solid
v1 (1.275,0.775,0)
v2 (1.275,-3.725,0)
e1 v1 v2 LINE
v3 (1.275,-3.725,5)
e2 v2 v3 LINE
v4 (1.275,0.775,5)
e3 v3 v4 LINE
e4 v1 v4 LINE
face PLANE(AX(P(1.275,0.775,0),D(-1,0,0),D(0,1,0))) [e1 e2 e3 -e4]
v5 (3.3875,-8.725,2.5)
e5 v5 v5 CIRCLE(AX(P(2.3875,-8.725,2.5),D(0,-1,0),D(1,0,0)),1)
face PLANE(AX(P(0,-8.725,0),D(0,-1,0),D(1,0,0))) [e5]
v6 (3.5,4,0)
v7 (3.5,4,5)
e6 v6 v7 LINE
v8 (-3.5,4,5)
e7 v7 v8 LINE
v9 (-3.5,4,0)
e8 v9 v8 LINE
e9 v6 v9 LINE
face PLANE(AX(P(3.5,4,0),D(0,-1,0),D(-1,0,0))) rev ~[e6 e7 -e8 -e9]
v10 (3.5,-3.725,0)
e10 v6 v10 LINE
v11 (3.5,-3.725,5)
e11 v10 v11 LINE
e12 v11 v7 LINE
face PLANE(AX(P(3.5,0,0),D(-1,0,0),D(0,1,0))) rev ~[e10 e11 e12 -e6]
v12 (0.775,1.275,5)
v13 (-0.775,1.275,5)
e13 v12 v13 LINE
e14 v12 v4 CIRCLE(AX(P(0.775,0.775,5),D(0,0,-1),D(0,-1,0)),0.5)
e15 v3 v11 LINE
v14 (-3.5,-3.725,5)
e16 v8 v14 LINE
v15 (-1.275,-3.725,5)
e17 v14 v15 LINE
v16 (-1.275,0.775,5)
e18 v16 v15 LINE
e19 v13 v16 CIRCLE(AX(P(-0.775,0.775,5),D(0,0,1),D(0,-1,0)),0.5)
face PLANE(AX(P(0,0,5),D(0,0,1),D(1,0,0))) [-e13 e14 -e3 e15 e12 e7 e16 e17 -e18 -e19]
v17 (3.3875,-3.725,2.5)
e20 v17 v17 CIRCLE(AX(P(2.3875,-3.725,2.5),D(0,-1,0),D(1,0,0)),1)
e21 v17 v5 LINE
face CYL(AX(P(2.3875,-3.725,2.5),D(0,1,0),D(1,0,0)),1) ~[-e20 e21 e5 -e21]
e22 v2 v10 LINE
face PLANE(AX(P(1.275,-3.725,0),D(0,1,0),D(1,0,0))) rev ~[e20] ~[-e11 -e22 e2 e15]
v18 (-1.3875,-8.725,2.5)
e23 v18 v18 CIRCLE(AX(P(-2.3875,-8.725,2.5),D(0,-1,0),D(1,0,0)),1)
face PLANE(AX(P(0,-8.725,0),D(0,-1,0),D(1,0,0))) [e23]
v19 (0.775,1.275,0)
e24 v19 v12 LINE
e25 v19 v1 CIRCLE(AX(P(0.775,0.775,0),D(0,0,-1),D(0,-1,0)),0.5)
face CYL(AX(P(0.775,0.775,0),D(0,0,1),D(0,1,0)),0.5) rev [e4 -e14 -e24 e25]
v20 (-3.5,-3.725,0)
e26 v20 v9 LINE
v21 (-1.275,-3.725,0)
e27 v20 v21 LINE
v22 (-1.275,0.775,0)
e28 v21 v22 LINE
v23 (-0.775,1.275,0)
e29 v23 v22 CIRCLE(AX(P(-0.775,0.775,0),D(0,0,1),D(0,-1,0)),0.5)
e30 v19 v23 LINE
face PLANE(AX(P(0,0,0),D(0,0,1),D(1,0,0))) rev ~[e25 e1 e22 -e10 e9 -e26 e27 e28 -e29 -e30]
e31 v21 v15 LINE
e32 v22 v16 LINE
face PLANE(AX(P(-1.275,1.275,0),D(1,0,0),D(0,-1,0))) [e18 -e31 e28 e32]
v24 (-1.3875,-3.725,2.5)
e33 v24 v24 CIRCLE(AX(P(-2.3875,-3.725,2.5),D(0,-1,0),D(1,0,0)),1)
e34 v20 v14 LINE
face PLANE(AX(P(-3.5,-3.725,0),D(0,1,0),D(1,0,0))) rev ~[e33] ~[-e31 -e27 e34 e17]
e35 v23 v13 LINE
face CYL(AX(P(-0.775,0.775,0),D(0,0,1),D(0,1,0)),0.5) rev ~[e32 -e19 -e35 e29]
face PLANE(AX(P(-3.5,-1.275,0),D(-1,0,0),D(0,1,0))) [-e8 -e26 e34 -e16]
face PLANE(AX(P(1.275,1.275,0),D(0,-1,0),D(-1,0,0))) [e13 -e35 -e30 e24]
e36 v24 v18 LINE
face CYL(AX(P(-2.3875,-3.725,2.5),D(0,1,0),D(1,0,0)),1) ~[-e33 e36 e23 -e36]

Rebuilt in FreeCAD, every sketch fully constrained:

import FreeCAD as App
import Part
import Sketcher


def edges_at(feature, points):
    """Names of the edges that pass closest to the given points."""
    edges = feature.Shape.Edges
    near = lambda p: min(range(len(edges)), key=lambda i: edges[i].distToShape(Part.Vertex(*p))[0])
    return sorted({f"Edge{near(p) + 1}" for p in points})

doc = App.newDocument("Part")
params = doc.addObject("Spreadsheet::Sheet", "Params")
for row, (alias, value) in enumerate([
    ("sketch1_width", "7 mm"),
    ("sketch1_width2", "2.55 mm"),
    ("sketch1_height", "5 mm"),
    ("pad1_length", "5 mm"),
    ("sketch2_diameter", "2 mm"),
    ("pad2_length", "5 mm"),
    ("fillet_radius", "0.5 mm"),
], start=1):
    params.set(f"A{row}", alias)
    params.set(f"B{row}", "=" + value)
    params.setAlias(f"B{row}", alias)

body = doc.addObject("PartDesign::Body", "Body")

# Sketch on XY plane
sketch1 = doc.addObject("Sketcher::SketchObject", "Sketch")
body.addObject(sketch1)
sketch1.AttachmentSupport = (doc.XY_Plane, [""])
sketch1.MapMode = "FlatFace"
sketch1.addGeometry([
    Part.LineSegment(App.Vector(-1.3, 1.3, 0), App.Vector(1.3, 1.3, 0)),  # 0
    Part.LineSegment(App.Vector(1.3, 1.3, 0), App.Vector(1.3, -3.7, 0)),  # 1
    Part.LineSegment(App.Vector(1.3, -3.7, 0), App.Vector(3.5, -3.7, 0)),  # 2
    Part.LineSegment(App.Vector(3.5, -3.7, 0), App.Vector(3.5, 4, 0)),  # 3
    Part.LineSegment(App.Vector(3.5, 4, 0), App.Vector(-3.5, 4, 0)),  # 4
    Part.LineSegment(App.Vector(-3.5, 4, 0), App.Vector(-3.5, -3.7, 0)),  # 5
    Part.LineSegment(App.Vector(-3.5, -3.7, 0), App.Vector(-1.3, -3.7, 0)),  # 6
    Part.LineSegment(App.Vector(-1.3, -3.7, 0), App.Vector(-1.3, 1.3, 0)),  # 7
], False)
sketch1.addConstraint([
    Sketcher.Constraint("Coincident", 0, 2, 1, 1),
    Sketcher.Constraint("Coincident", 1, 2, 2, 1),
    Sketcher.Constraint("Coincident", 2, 2, 3, 1),
    Sketcher.Constraint("Coincident", 3, 2, 4, 1),
    Sketcher.Constraint("Coincident", 4, 2, 5, 1),
    Sketcher.Constraint("Coincident", 5, 2, 6, 1),
    Sketcher.Constraint("Coincident", 6, 2, 7, 1),
    Sketcher.Constraint("Coincident", 7, 2, 0, 1),
    Sketcher.Constraint("Horizontal", 0),
    Sketcher.Constraint("Vertical", 1),
    Sketcher.Constraint("Horizontal", 2),
    Sketcher.Constraint("Vertical", 3),
    Sketcher.Constraint("Horizontal", 4),
    Sketcher.Constraint("Vertical", 5),
    Sketcher.Constraint("Horizontal", 6),
    Sketcher.Constraint("Vertical", 7),
    Sketcher.Constraint("Symmetric", 2, 2, 5, 2, -2),
    Sketcher.Constraint("Equal", 2, 6),
    Sketcher.Constraint("DistanceX", 4, 2, 4, 1, 7.0),
    Sketcher.Constraint("DistanceY", -1, 1, 3, 2, 4.0),
    Sketcher.Constraint("DistanceX", 0, 1, 0, 2, 2.55),
    Sketcher.Constraint("DistanceY", 1, 2, 1, 1, 5.0),
    Sketcher.Constraint("DistanceY", -1, 1, 0, 2, 1.275),
])
sketch1.setExpression("Constraints[18]", "Params.sketch1_width")
sketch1.setExpression("Constraints[20]", "Params.sketch1_width2")
sketch1.setExpression("Constraints[21]", "Params.sketch1_height")
pad1 = doc.addObject("PartDesign::Pad", "Pad")
body.addObject(pad1)
pad1.Profile = sketch1
pad1.setExpression("Length", "Params.pad1_length")

# Sketch on XZ plane
sketch2 = doc.addObject("Sketcher::SketchObject", "Sketch001")
body.addObject(sketch2)
sketch2.AttachmentSupport = (doc.XZ_Plane, [""])
sketch2.MapMode = "FlatFace"
sketch2.AttachmentOffset = App.Placement(App.Vector(0, 0, 3.725), App.Rotation())
sketch2.addGeometry([
    Part.Circle(App.Vector(-2.4, 2.5, 0), App.Vector(0, 0, 1), 1),
    Part.Circle(App.Vector(2.4, 2.5, 0), App.Vector(0, 0, 1), 1),
], False)
sketch2.addConstraint([
    Sketcher.Constraint("Equal", 0, 1),
    Sketcher.Constraint("Symmetric", 0, 3, 1, 3, -2),
    Sketcher.Constraint("Diameter", 0, 2.0),
    Sketcher.Constraint("DistanceY", -1, 1, 0, 3, 2.5),
    Sketcher.Constraint("DistanceX", 0, 3, 1, 3, 4.775),
])
sketch2.setExpression("Constraints[2]", "Params.sketch2_diameter")
pad2 = doc.addObject("PartDesign::Pad", "Pad001")
body.addObject(pad2)
pad2.Profile = sketch2
pad2.setExpression("Length", "Params.pad2_length")
doc.recompute()

fillet = doc.addObject("PartDesign::Fillet", "Fillet")
body.addObject(fillet)
fillet.Base = (pad2, edges_at(pad2, [(1.275, 1.275, 2.5), (-1.275, 1.275, 2.5)]))
fillet.setExpression("Radius", "Params.fillet_radius")

doc.recompute()
